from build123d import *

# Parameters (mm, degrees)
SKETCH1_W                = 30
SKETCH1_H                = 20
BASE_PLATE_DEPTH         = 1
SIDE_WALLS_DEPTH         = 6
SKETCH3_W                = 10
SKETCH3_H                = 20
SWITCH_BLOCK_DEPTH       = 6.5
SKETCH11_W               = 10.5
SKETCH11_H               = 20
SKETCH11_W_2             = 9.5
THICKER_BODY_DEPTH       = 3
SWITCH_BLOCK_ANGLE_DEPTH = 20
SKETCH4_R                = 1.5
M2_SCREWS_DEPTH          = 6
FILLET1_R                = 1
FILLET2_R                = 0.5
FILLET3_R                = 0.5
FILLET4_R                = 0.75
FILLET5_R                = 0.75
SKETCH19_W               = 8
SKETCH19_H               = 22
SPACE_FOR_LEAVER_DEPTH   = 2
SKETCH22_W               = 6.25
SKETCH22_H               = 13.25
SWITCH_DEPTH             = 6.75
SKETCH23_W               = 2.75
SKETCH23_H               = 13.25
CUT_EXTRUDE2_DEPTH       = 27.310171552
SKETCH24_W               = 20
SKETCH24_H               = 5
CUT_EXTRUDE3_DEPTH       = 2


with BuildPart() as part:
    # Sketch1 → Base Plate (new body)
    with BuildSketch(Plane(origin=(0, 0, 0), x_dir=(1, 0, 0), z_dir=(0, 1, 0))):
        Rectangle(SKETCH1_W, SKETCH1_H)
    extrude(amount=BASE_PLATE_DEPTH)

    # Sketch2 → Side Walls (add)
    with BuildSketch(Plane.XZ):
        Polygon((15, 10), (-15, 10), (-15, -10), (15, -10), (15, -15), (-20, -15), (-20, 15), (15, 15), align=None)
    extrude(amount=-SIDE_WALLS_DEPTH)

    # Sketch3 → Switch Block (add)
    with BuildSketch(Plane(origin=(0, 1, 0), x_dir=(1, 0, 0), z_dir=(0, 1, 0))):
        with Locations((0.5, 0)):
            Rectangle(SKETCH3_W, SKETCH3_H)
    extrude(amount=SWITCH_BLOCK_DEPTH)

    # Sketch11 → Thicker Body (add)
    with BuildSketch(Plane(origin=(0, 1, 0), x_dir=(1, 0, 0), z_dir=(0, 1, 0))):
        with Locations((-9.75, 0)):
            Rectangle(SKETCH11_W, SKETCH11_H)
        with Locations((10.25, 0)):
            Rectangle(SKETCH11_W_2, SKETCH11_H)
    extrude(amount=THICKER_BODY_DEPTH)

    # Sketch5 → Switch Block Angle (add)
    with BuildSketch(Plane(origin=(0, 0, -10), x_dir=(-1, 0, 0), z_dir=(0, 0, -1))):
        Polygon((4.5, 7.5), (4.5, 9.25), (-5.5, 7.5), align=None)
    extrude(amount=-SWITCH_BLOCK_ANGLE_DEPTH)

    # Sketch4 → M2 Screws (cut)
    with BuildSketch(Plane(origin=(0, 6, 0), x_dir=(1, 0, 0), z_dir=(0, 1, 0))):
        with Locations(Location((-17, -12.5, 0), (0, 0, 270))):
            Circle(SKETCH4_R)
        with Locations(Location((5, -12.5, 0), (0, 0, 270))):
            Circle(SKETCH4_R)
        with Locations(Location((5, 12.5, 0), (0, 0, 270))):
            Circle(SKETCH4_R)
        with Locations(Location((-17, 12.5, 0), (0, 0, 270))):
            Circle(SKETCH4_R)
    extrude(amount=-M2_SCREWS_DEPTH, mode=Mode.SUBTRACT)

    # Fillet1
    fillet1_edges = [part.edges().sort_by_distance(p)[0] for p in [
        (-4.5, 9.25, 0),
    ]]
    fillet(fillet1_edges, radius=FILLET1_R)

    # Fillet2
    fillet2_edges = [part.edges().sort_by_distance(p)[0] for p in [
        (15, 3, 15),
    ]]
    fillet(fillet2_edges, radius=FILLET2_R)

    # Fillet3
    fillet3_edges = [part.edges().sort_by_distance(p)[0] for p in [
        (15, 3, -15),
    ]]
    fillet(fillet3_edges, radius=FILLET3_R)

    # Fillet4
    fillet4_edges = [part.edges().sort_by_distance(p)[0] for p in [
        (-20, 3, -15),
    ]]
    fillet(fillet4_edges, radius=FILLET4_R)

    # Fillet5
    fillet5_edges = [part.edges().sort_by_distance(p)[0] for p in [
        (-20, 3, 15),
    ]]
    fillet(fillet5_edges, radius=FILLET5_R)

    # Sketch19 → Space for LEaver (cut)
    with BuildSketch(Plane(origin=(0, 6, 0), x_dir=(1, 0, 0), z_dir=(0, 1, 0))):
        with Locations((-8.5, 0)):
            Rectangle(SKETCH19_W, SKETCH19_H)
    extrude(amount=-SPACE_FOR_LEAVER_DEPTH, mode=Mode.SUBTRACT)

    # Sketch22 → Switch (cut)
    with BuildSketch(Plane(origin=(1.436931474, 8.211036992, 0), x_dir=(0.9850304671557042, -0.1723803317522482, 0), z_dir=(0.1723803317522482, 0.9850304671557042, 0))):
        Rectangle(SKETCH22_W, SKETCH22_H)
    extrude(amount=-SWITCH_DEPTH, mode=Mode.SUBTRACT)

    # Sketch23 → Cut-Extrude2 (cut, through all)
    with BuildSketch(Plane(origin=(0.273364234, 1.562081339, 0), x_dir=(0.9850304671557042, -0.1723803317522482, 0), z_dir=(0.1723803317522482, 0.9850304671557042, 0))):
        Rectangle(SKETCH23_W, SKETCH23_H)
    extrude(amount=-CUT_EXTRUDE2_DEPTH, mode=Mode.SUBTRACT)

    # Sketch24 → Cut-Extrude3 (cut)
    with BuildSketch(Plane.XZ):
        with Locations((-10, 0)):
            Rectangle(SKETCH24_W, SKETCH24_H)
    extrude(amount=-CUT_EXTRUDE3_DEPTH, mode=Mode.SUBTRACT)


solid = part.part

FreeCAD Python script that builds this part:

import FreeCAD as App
import Part
import Sketcher
from FreeCAD import Vector
Q = App.Units.Quantity


def edges_at(feature, points):
    """Names of the edges that pass closest to the given points."""
    edges = feature.Shape.Edges
    near = lambda p: min(range(len(edges)), key=lambda i: edges[i].distToShape(Part.Vertex(*p))[0])
    return sorted({f"Edge{near(p) + 1}" for p in points})


def add_polygon(sketch, points):
    """Adds a closed chain of lines whose ends are joined by coincident constraints."""
    first, n = sketch.GeometryCount, len(points)
    for a, b in zip(points, points[1:] + points[:1]):
        sketch.addGeometry(Part.LineSegment(App.Vector(*a, 0), App.Vector(*b, 0)), False)
    for i in range(n):
        sketch.addConstraint(Sketcher.Constraint("Coincident", first + i, 2, first + (i + 1) % n, 1))

doc = App.newDocument("Part")
body = doc.addObject("PartDesign::Body", "Body")

sketch1 = body.newObject("Sketcher::SketchObject", "Sketch")
sketch1.AttachmentSupport = (doc.getObject("XZ_Plane"), [""])
sketch1.MapMode = "FlatFace"
add_polygon(sketch1, [(-15, -10), (-15, 10), (15, 10), (15, -10)])
sketch1.addConstraint([
    Sketcher.Constraint("Vertical", 0),
    Sketcher.Constraint("Horizontal", 1),
    Sketcher.Constraint("Vertical", 2),
    Sketcher.Constraint("Horizontal", 3),
    Sketcher.Constraint("Symmetric", 0, 2, 2, 2, -1, 1),
    Sketcher.Constraint("DistanceX", 1, 1, 1, 2, Q("30 mm")),
    Sketcher.Constraint("DistanceY", 0, 1, 0, 2, Q("20 mm")),
])
pad1 = body.newObject("PartDesign::Pad", "Pad")
pad1.Profile = sketch1
pad1.Length = 1
pad1.Reversed = True

sketch2 = body.newObject("Sketcher::SketchObject", "Sketch001")
sketch2.AttachmentSupport = (doc.getObject("XZ_Plane"), [""])
sketch2.MapMode = "FlatFace"
add_polygon(sketch2, [(-15, 10), (15, 10), (15, 15), (-20, 15), (-20, -15), (15, -15), (15, -10), (-15, -10)])
sketch2.addConstraint([
    Sketcher.Constraint("Horizontal", 0),
    Sketcher.Constraint("Vertical", 1),
    Sketcher.Constraint("Horizontal", 2),
    Sketcher.Constraint("Vertical", 3),
    Sketcher.Constraint("Horizontal", 4),
    Sketcher.Constraint("Vertical", 5),
    Sketcher.Constraint("Horizontal", 6),
    Sketcher.Constraint("Vertical", 7),
    Sketcher.Constraint("Symmetric", 0, 2, 6, 2, -1, 1),
    Sketcher.Constraint("Symmetric", 1, 2, 4, 2, -1),
    Sketcher.Constraint("Equal", 6, 3),
    Sketcher.Constraint("DistanceX", 0, 1, 0, 2, Q("30 mm")),
    Sketcher.Constraint("DistanceX", 2, 2, 2, 1, Q("35 mm")),
    Sketcher.Constraint("DistanceY", 1, 1, 1, 2, Q("5 mm")),
])
pad2 = body.newObject("PartDesign::Pad", "Pad001")
pad2.Profile = sketch2
pad2.Length = 6
pad2.Reversed = True

sketch3 = body.newObject("Sketcher::SketchObject", "Sketch002")
sketch3.AttachmentSupport = (doc.getObject("XZ_Plane"), [""])
sketch3.MapMode = "FlatFace"
sketch3.AttachmentOffset = App.Placement(Vector(0, 0, -1), App.Rotation())
add_polygon(sketch3, [(-4, -10), (-4, 10), (6, 10), (6, -10)])
sketch3.addConstraint([
    Sketcher.Constraint("Vertical", 0),
    Sketcher.Constraint("Horizontal", 1),
    Sketcher.Constraint("Vertical", 2),
    Sketcher.Constraint("Horizontal", 3),
    Sketcher.Constraint("DistanceX", 1, 1, 1, 2, Q("10 mm")),
    Sketcher.Constraint("DistanceY", 0, 1, 0, 2, Q("20 mm")),
    Sketcher.Constraint("DistanceY", -1, 1, 0, 2, Q("10 mm")),
    Sketcher.Constraint("DistanceX", 0, 2, -1, 1, Q("4.5 mm")),
])
pad3 = body.newObject("PartDesign::Pad", "Pad002")
pad3.Profile = sketch3
pad3.Length = 6.5
pad3.Reversed = True

sketch4 = body.newObject("Sketcher::SketchObject", "Sketch003")
sketch4.AttachmentSupport = (doc.getObject("XZ_Plane"), [""])
sketch4.MapMode = "FlatFace"
sketch4.AttachmentOffset = App.Placement(Vector(0, 0, -1), App.Rotation())
add_polygon(sketch4, [(-15, -10), (-15, 10), (-4, 10), (-4, -10)])
add_polygon(sketch4, [(6, -10), (6, 10), (15, 10), (15, -10)])
sketch4.addConstraint([
    Sketcher.Constraint("Vertical", 0),
    Sketcher.Constraint("Horizontal", 1),
    Sketcher.Constraint("Vertical", 2),
    Sketcher.Constraint("Horizontal", 3),
    Sketcher.Constraint("Vertical", 4),
    Sketcher.Constraint("Horizontal", 5),
    Sketcher.Constraint("Vertical", 6),
    Sketcher.Constraint("Horizontal", 7),
    Sketcher.Constraint("Symmetric", 3, 2, 5, 2, -1, 1),
    Sketcher.Constraint("Horizontal", 1, 2, 4, 2),
    Sketcher.Constraint("Horizontal", 3, 2, 6, 2),
    Sketcher.Constraint("DistanceY", 0, 1, 0, 2, Q("20 mm")),
    Sketcher.Constraint("DistanceX", 1, 1, 1, 2, Q("10.5 mm")),
    Sketcher.Constraint("DistanceX", 5, 1, 5, 2, Q("9.5 mm")),
    Sketcher.Constraint("DistanceX", 0, 2, -1, 1, Q("15 mm")),
])
pad4 = body.newObject("PartDesign::Pad", "Pad003")
pad4.Profile = sketch4
pad4.Length = 3
pad4.Reversed = True

sketch5 = body.newObject("Sketcher::SketchObject", "Sketch004")
sketch5.AttachmentSupport = (doc.getObject("XY_Plane"), [""])
sketch5.MapMode = "FlatFace"
sketch5.AttachmentOffset = App.Placement(Vector(0, 0, -10), App.Rotation())
add_polygon(sketch5, [(-4.5, 7.5), (-4.5, 9.2), (5.5, 7.5)])
sketch5.addConstraint([
    Sketcher.Constraint("Vertical", 0),
    Sketcher.Constraint("Horizontal", 2),
    Sketcher.Constraint("DistanceX", 2, 2, 2, 1, Q("10 mm")),
    Sketcher.Constraint("DistanceY", 0, 1, 0, 2, Q("1.75 mm")),
    Sketcher.Constraint("DistanceX", 0, 2, -1, 1, Q("4.5 mm")),
    Sketcher.Constraint("DistanceY", -1, 1, 1, 2, Q("7.5 mm")),
])
pad5 = body.newObject("PartDesign::Pad", "Pad004")
pad5.Profile = sketch5
pad5.Length = 20

sketch6 = body.newObject("Sketcher::SketchObject", "Sketch005")
sketch6.AttachmentSupport = (doc.getObject("XZ_Plane"), [""])
sketch6.MapMode = "FlatFace"
sketch6.AttachmentOffset = App.Placement(Vector(0, 0, -6), App.Rotation())
sketch6.addGeometry([
    Part.Circle(Vector(-17, 12.5, 0), Vector(0, 0, 1), 1.5),
    Part.Circle(Vector(5, 12.5, 0), Vector(0, 0, 1), 1.5),
    Part.Circle(Vector(5, -12.5, 0), Vector(0, 0, 1), 1.5),
    Part.Circle(Vector(-17, -12.5, 0), Vector(0, 0, 1), 1.5),
], False)
sketch6.addConstraint([
    Sketcher.Constraint("Equal", 0, 1),
    Sketcher.Constraint("Equal", 1, 2),
    Sketcher.Constraint("Equal", 2, 3),
    Sketcher.Constraint("Symmetric", 1, 3, 2, 3, -1),
    Sketcher.Constraint("Symmetric", 0, 3, 3, 3, -1),
    Sketcher.Constraint("Horizontal", 0, 3, 1, 3),
    Sketcher.Constraint("Diameter", 0, Q("3 mm")),
    Sketcher.Constraint("DistanceX", 0, 3, -1, 1, Q("17 mm")),
    Sketcher.Constraint("DistanceX", -1, 1, 1, 3, Q("5 mm")),
    Sketcher.Constraint("DistanceY", 2, 3, 1, 3, Q("25 mm")),
])
pocket1 = body.newObject("PartDesign::Pocket", "Pocket")
pocket1.Profile = sketch6
pocket1.Length = 6
pocket1.Reversed = True
doc.recompute()

fillet = body.newObject("PartDesign::Fillet", "Fillet")
fillet.Base = (pocket1, edges_at(pocket1, [(-4.5, 9.25, 0)]))
fillet.Radius = 1
doc.recompute()

fillet2 = body.newObject("PartDesign::Fillet", "Fillet001")
fillet2.Base = (fillet, edges_at(fillet, [(15, 3, 15)]))
fillet2.Radius = 0.5
doc.recompute()

fillet3 = body.newObject("PartDesign::Fillet", "Fillet002")
fillet3.Base = (fillet2, edges_at(fillet2, [(15, 3, -15)]))
fillet3.Radius = 0.5
doc.recompute()

fillet4 = body.newObject("PartDesign::Fillet", "Fillet003")
fillet4.Base = (fillet3, edges_at(fillet3, [(-20, 3, -15)]))
fillet4.Radius = 0.75
doc.recompute()

fillet5 = body.newObject("PartDesign::Fillet", "Fillet004")
fillet5.Base = (fillet4, edges_at(fillet4, [(-20, 3, 15)]))
fillet5.Radius = 0.75

sketch7 = body.newObject("Sketcher::SketchObject", "Sketch006")
sketch7.AttachmentSupport = (doc.getObject("XZ_Plane"), [""])
sketch7.MapMode = "FlatFace"
sketch7.AttachmentOffset = App.Placement(Vector(0, 0, -6), App.Rotation())
add_polygon(sketch7, [(-12, -11), (-12, 11), (-4, 11), (-4, -11)])
sketch7.addConstraint([
    Sketcher.Constraint("Vertical", 0),
    Sketcher.Constraint("Horizontal", 1),
    Sketcher.Constraint("Vertical", 2),
    Sketcher.Constraint("Horizontal", 3),
    Sketcher.Constraint("DistanceX", 1, 1, 1, 2, Q("8 mm")),
    Sketcher.Constraint("DistanceY", 0, 1, 0, 2, Q("22 mm")),
    Sketcher.Constraint("DistanceY", -1, 1, 0, 2, Q("11 mm")),
    Sketcher.Constraint("DistanceX", 0, 2, -1, 1, Q("12.5 mm")),
])
pocket2 = body.newObject("PartDesign::Pocket", "Pocket001")
pocket2.Profile = sketch7
pocket2.Length = 2
pocket2.Reversed = True

sketch8 = body.newObject("Sketcher::SketchObject", "Sketch007")
sketch8.Placement = App.Placement(Vector(1.436931, 8.211037, 0), App.Rotation(Vector(0.985030467, -0.172380332, 0), Vector(0, 0, -1), Vector(0.172380332, 0.985030467, 0), "ZXY"))
add_polygon(sketch8, [(-3, 7), (-3, -7), (3, -7), (3, 7)])
sketch8.addConstraint([
    Sketcher.Constraint("Vertical", 0),
    Sketcher.Constraint("Horizontal", 1),
    Sketcher.Constraint("Vertical", 2),
    Sketcher.Constraint("Horizontal", 3),
    Sketcher.Constraint("Symmetric", 0, 2, 2, 2, -1, 1),
    Sketcher.Constraint("DistanceX", 1, 1, 1, 2, Q("6.25 mm")),
    Sketcher.Constraint("DistanceY", 0, 2, 0, 1, Q("13.25 mm")),
])
pocket3 = body.newObject("PartDesign::Pocket", "Pocket002")
pocket3.Profile = sketch8
pocket3.Length = 6.75

sketch9 = body.newObject("Sketcher::SketchObject", "Sketch008")
sketch9.Placement = App.Placement(Vector(0.273364, 1.562081, 0), App.Rotation(Vector(0.985030467, -0.172380332, 0), Vector(0, 0, -1), Vector(0.172380332, 0.985030467, 0), "ZXY"))
add_polygon(sketch9, [(-1.4, 6.6), (-1.4, -6.6), (1.4, -6.6), (1.4, 6.6)])
sketch9.addConstraint([
    Sketcher.Constraint("Vertical", 0),
    Sketcher.Constraint("Horizontal", 1),
    Sketcher.Constraint("Vertical", 2),
    Sketcher.Constraint("Horizontal", 3),
    Sketcher.Constraint("Symmetric", 0, 2, 2, 2, -1, 1),
    Sketcher.Constraint("DistanceX", 1, 1, 1, 2, Q("2.75 mm")),
    Sketcher.Constraint("DistanceY", 0, 2, 0, 1, Q("13.25 mm")),
])
pocket4 = body.newObject("PartDesign::Pocket", "Pocket003")
pocket4.Profile = sketch9
pocket4.Type = "ThroughAll"

sketch10 = body.newObject("Sketcher::SketchObject", "Sketch009")
sketch10.AttachmentSupport = (doc.getObject("XZ_Plane"), [""])
sketch10.MapMode = "FlatFace"
add_polygon(sketch10, [(-20, 2), (-20, -2), (0, -2), (0, 2)])
sketch10.addConstraint([
    Sketcher.Constraint("Vertical", 0),
    Sketcher.Constraint("Horizontal", 1),
    Sketcher.Constraint("Vertical", 2),
    Sketcher.Constraint("Horizontal", 3),
    Sketcher.Constraint("Symmetric", 1, 2, 2, 2, -1, 1),
    Sketcher.Constraint("DistanceX", 1, 1, 1, 2, Q("20 mm")),
    Sketcher.Constraint("DistanceY", 0, 2, 0, 1, Q("5 mm")),
])
pocket5 = body.newObject("PartDesign::Pocket", "Pocket004")
pocket5.Profile = sketch10
pocket5.Length = 2

doc.recompute()
